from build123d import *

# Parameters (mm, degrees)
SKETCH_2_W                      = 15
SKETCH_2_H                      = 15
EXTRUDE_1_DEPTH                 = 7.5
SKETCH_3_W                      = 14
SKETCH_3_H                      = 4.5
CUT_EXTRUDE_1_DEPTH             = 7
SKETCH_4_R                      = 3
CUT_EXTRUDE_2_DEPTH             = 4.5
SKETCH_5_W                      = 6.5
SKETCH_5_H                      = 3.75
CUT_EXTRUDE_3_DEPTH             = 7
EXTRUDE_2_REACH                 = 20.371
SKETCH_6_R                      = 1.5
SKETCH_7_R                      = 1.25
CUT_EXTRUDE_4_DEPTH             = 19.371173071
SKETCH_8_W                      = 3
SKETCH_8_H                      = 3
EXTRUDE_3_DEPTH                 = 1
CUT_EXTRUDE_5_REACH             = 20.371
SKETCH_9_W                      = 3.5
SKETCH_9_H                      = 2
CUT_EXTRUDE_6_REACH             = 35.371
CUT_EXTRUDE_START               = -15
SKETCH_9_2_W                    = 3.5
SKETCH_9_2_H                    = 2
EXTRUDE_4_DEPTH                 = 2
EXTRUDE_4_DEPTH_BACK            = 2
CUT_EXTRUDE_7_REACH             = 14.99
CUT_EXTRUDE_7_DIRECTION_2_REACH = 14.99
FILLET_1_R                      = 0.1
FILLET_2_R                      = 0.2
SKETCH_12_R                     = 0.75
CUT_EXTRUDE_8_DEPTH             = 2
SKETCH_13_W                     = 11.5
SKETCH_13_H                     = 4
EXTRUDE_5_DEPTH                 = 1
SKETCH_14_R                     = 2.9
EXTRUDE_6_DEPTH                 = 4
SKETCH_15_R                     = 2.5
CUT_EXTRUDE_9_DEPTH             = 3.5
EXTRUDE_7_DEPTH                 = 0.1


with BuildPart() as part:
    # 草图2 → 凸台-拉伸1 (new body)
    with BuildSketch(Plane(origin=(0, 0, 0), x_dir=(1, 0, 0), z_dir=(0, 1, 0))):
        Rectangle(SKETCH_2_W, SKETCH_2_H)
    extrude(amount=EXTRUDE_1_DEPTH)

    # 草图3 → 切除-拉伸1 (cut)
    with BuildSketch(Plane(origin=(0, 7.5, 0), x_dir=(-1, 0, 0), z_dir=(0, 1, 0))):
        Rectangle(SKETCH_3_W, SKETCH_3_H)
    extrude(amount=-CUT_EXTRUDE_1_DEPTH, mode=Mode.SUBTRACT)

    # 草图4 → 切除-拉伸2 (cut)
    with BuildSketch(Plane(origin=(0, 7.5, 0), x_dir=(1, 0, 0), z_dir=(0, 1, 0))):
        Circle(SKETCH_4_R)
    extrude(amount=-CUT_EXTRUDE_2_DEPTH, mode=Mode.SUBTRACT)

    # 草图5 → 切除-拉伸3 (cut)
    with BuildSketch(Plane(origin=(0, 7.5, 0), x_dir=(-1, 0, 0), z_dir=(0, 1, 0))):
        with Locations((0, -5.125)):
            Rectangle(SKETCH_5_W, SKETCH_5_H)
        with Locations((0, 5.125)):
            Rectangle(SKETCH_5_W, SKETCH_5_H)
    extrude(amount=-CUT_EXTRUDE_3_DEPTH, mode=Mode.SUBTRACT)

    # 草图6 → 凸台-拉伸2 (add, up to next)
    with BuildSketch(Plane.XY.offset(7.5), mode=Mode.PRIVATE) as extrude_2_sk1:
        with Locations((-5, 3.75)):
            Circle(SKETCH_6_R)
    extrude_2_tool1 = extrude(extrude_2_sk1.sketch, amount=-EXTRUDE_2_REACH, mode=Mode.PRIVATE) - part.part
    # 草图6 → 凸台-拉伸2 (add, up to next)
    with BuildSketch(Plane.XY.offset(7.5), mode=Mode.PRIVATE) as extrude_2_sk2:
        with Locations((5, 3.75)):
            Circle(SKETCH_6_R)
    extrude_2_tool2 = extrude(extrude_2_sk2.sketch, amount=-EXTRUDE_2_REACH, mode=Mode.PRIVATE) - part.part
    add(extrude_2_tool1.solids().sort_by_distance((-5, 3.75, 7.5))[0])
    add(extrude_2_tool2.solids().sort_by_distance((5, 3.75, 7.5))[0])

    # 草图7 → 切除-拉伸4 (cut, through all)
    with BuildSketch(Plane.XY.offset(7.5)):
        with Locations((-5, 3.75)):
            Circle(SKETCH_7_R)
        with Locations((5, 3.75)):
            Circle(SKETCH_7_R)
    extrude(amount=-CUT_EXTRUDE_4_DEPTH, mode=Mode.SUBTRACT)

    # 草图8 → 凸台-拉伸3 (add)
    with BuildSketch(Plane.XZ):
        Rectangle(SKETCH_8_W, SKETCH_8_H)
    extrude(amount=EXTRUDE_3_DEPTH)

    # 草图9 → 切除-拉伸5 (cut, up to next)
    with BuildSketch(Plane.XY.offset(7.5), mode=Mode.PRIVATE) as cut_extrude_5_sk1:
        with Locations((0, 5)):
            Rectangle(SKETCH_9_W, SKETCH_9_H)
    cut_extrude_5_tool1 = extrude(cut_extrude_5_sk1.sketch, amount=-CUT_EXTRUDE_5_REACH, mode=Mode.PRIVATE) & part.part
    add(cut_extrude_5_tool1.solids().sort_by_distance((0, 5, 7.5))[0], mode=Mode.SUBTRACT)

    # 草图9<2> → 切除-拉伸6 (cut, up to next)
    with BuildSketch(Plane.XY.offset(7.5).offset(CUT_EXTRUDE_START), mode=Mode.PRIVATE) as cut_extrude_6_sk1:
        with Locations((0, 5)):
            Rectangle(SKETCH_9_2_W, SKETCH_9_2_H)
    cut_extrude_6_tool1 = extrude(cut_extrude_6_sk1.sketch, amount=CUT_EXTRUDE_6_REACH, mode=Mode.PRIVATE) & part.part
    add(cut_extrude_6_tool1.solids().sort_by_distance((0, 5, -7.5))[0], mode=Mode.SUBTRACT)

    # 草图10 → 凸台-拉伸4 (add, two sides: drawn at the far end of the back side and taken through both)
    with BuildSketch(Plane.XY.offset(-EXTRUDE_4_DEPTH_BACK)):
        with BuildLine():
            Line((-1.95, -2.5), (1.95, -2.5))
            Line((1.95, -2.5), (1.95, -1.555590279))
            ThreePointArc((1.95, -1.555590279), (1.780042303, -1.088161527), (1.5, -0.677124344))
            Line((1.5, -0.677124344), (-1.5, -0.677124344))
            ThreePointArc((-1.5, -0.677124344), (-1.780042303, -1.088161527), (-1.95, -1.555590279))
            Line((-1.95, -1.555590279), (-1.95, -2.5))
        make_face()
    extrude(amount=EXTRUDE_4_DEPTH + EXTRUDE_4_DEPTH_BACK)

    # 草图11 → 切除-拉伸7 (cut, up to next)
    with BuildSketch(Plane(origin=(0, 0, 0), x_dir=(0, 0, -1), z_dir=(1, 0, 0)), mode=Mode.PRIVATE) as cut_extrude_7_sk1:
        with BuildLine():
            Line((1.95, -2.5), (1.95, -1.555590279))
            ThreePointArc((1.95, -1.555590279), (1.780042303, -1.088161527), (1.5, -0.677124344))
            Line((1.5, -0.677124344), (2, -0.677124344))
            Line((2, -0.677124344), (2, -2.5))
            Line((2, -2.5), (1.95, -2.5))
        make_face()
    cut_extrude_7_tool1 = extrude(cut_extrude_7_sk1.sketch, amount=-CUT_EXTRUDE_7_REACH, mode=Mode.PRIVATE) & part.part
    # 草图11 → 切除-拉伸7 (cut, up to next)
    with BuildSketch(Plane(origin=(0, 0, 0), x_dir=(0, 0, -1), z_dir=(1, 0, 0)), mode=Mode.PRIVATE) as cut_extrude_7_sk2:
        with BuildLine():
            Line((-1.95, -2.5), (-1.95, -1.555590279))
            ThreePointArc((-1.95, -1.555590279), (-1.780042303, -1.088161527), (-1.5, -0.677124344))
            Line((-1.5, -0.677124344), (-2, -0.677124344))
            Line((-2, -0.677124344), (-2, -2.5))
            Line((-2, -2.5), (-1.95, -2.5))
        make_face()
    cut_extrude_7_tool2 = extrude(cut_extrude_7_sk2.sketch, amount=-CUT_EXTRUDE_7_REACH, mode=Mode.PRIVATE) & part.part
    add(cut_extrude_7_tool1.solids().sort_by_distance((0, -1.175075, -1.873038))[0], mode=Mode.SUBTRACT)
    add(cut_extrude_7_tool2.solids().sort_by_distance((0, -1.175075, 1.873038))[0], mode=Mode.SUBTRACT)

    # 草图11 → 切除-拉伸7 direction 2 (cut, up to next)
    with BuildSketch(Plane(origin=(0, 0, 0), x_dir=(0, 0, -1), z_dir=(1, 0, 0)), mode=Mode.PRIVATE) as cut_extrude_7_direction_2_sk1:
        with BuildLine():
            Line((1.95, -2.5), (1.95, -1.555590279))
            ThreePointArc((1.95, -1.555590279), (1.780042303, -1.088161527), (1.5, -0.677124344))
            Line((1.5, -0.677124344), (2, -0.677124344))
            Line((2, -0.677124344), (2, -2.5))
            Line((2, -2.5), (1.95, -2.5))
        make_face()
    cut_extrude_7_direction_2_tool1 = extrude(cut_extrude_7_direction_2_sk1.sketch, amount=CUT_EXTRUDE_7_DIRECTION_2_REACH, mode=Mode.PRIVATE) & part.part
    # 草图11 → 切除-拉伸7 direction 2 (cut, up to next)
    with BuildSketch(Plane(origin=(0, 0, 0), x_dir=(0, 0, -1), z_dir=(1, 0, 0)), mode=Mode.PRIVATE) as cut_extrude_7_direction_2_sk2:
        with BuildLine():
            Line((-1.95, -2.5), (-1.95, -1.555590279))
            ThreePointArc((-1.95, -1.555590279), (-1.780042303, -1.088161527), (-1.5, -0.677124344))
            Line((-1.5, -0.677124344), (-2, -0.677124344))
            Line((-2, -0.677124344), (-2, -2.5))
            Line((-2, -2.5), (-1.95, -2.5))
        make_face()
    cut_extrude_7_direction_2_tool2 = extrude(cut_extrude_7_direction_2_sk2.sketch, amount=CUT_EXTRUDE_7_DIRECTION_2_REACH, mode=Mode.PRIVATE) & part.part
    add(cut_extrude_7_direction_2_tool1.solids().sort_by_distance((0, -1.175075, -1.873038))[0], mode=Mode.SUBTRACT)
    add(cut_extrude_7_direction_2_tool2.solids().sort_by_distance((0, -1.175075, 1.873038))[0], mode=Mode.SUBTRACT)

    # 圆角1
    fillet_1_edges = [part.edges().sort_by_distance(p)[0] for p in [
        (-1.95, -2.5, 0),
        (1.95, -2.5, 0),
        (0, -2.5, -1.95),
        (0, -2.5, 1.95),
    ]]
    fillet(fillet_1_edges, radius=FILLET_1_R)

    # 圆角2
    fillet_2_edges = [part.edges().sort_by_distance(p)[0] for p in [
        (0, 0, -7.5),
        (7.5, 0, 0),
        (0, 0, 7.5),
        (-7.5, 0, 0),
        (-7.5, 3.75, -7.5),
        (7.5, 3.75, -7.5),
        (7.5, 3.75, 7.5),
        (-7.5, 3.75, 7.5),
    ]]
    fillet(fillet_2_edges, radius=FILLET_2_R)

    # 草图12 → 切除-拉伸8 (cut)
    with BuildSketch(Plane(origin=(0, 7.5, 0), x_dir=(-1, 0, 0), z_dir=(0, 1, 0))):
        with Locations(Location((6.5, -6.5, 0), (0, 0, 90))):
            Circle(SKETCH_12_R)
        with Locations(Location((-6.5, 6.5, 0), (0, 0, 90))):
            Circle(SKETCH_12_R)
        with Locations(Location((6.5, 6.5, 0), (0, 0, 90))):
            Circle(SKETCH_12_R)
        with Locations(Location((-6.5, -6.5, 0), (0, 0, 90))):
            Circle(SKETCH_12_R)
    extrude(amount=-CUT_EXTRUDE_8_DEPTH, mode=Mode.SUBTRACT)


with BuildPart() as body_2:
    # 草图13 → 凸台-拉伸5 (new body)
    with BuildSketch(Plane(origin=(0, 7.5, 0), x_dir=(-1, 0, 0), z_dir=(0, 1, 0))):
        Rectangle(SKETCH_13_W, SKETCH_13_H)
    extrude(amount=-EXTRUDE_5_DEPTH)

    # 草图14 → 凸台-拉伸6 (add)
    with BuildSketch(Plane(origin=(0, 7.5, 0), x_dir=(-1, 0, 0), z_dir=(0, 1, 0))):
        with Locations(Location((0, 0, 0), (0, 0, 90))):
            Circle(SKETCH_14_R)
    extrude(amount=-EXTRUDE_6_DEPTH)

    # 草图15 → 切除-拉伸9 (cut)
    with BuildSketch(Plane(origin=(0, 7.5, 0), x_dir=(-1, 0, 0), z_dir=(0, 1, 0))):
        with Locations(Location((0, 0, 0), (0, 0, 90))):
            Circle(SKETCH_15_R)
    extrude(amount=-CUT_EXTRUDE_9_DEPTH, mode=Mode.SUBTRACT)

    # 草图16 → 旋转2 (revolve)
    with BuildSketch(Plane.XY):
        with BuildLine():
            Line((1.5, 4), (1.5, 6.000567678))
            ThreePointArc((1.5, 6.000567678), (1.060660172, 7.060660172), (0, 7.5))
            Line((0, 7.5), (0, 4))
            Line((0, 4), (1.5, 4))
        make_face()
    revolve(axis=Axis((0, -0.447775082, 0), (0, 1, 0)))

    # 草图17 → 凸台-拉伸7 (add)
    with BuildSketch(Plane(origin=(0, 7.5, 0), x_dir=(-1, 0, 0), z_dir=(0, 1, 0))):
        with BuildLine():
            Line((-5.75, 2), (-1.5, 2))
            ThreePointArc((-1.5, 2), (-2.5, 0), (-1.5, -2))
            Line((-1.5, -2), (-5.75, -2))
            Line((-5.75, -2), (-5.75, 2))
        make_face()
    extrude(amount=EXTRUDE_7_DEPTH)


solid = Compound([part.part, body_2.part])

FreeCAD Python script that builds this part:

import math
import FreeCAD as App
import Part
import Sketcher
Q = App.Units.Quantity


def edges_at(feature, points):
    """Names of the edges that pass closest to the given points."""
    edges = feature.Shape.Edges
    near = lambda p: min(range(len(edges)), key=lambda i: edges[i].distToShape(Part.Vertex(*p))[0])
    return sorted({f"Edge{near(p) + 1}" for p in points})


def add_polygon(sketch, points):
    """Adds a closed chain of lines whose ends are joined by coincident constraints."""
    first, n = sketch.GeometryCount, len(points)
    for a, b in zip(points, points[1:] + points[:1]):
        sketch.addGeometry(Part.LineSegment(App.Vector(*a, 0), App.Vector(*b, 0)), False)
    for i in range(n):
        sketch.addConstraint(Sketcher.Constraint("Coincident", first + i, 2, first + (i + 1) % n, 1))

doc = App.newDocument("Part")
body = doc.addObject("PartDesign::Body", "Body")

# Sketch on XZ plane
sketch1 = body.newObject("Sketcher::SketchObject", "Sketch")
sketch1.AttachmentSupport = (doc.getObject("XZ_Plane"), [""])
sketch1.MapMode = "FlatFace"
add_polygon(sketch1, [(-8, -8), (-8, 8), (8, 8), (8, -8)])  # lines 0-3
sketch1.addConstraint([
    Sketcher.Constraint("Vertical", 0),
    Sketcher.Constraint("Horizontal", 1),
    Sketcher.Constraint("Vertical", 2),
    Sketcher.Constraint("Horizontal", 3),
    Sketcher.Constraint("Symmetric", 0, 2, 2, 2, -1, 1),
    Sketcher.Constraint("Equal", 3, 0),
    Sketcher.Constraint("DistanceX", 1, 1, 1, 2, Q("15 mm")),
])
pad1 = body.newObject("PartDesign::Pad", "Pad")
pad1.Profile = sketch1
pad1.Length = 7.5
pad1.Reversed = True

# Sketch on XZ plane
sketch2 = body.newObject("Sketcher::SketchObject", "Sketch001")
sketch2.AttachmentSupport = (doc.getObject("XZ_Plane"), [""])
sketch2.MapMode = "FlatFace"
sketch2.AttachmentOffset = App.Placement(App.Vector(0, 0, -7.5), App.Rotation())
add_polygon(sketch2, [(7, 2.2), (7, -2.2), (-7, -2.2), (-7, 2.2)])  # lines 0-3
sketch2.addConstraint([
    Sketcher.Constraint("Vertical", 0),
    Sketcher.Constraint("Horizontal", 1),
    Sketcher.Constraint("Vertical", 2),
    Sketcher.Constraint("Horizontal", 3),
    Sketcher.Constraint("Symmetric", 0, 2, 2, 2, -1, 1),
    Sketcher.Constraint("DistanceX", 1, 2, 1, 1, Q("14 mm")),
    Sketcher.Constraint("DistanceY", 0, 2, 0, 1, Q("4.5 mm")),
])
pocket1 = body.newObject("PartDesign::Pocket", "Pocket")
pocket1.Profile = sketch2
pocket1.Length = 7
pocket1.Reversed = True

# Sketch on XZ plane
sketch3 = body.newObject("Sketcher::SketchObject", "Sketch002")
sketch3.AttachmentSupport = (doc.getObject("XZ_Plane"), [""])
sketch3.MapMode = "FlatFace"
sketch3.AttachmentOffset = App.Placement(App.Vector(0, 0, -7.5), App.Rotation())
sketch3.addGeometry(Part.Circle(App.Vector(0, 0, 0), App.Vector(0, 0, 1), 3), False)
sketch3.addConstraint([
    Sketcher.Constraint("Coincident", 0, 3, -1, 1),
    Sketcher.Constraint("Diameter", 0, Q("6 mm")),
])
pocket2 = body.newObject("PartDesign::Pocket", "Pocket001")
pocket2.Profile = sketch3
pocket2.Length = 4.5
pocket2.Reversed = True

# Sketch on XZ plane
sketch4 = body.newObject("Sketcher::SketchObject", "Sketch003")
sketch4.AttachmentSupport = (doc.getObject("XZ_Plane"), [""])
sketch4.MapMode = "FlatFace"
sketch4.AttachmentOffset = App.Placement(App.Vector(0, 0, -7.5), App.Rotation())
add_polygon(sketch4, [(3.2, -3.2), (3.2, -7), (-3.2, -7), (-3.2, -3.2)])  # lines 0-3
add_polygon(sketch4, [(3.2, 7), (3.2, 3.2), (-3.2, 3.2), (-3.2, 7)])  # lines 4-7
sketch4.addConstraint([
    Sketcher.Constraint("Vertical", 0),
    Sketcher.Constraint("Horizontal", 1),
    Sketcher.Constraint("Vertical", 2),
    Sketcher.Constraint("Horizontal", 3),
    Sketcher.Constraint("Vertical", 4),
    Sketcher.Constraint("Horizontal", 5),
    Sketcher.Constraint("Vertical", 6),
    Sketcher.Constraint("Horizontal", 7),
    Sketcher.Constraint("Symmetric", 2, 2, 4, 2, -1, 1),
    Sketcher.Constraint("Symmetric", 0, 2, 6, 2, -1, 1),
    Sketcher.Constraint("Vertical", 3, 2, 4, 2),
    Sketcher.Constraint("DistanceX", 1, 2, 1, 1, Q("6.5 mm")),
    Sketcher.Constraint("DistanceY", 0, 2, -1, 1, Q("7 mm")),
    Sketcher.Constraint("DistanceY", 0, 2, 0, 1, Q("3.75 mm")),
])
pocket3 = body.newObject("PartDesign::Pocket", "Pocket002")
pocket3.Profile = sketch4
pocket3.Length = 7
pocket3.Reversed = True

# Sketch on XY plane
sketch5 = body.newObject("Sketcher::SketchObject", "Sketch004")
sketch5.AttachmentSupport = (doc.getObject("XY_Plane"), [""])
sketch5.MapMode = "FlatFace"
sketch5.AttachmentOffset = App.Placement(App.Vector(0, 0, 7.5), App.Rotation())
sketch5.addGeometry(Part.Circle(App.Vector(-5, 3.8, 0), App.Vector(0, 0, 1), 1.5), False)
sketch5.addConstraint([
    Sketcher.Constraint("Diameter", 0, Q("3 mm")),
    Sketcher.Constraint("DistanceX", 0, 3, -1, 1, Q("5 mm")),
    Sketcher.Constraint("DistanceY", -1, 1, 0, 3, Q("3.75 mm")),
])
pad2 = body.newObject("PartDesign::Pad", "Pad001")
pad2.Profile = sketch5
pad2.Length = 9.75
pad2.Reversed = True

# Sketch on XY plane
sketch6 = body.newObject("Sketcher::SketchObject", "Sketch005")
sketch6.AttachmentSupport = (doc.getObject("XY_Plane"), [""])
sketch6.MapMode = "FlatFace"
sketch6.AttachmentOffset = App.Placement(App.Vector(0, 0, 7.5), App.Rotation())
sketch6.addGeometry(Part.Circle(App.Vector(5, 3.8, 0), App.Vector(0, 0, 1), 1.5), False)
sketch6.addConstraint([
    Sketcher.Constraint("Diameter", 0, Q("3 mm")),
    Sketcher.Constraint("DistanceX", -1, 1, 0, 3, Q("5 mm")),
    Sketcher.Constraint("DistanceY", -1, 1, 0, 3, Q("3.75 mm")),
])
pad3 = body.newObject("PartDesign::Pad", "Pad002")
pad3.Profile = sketch6
pad3.Length = 9.75
pad3.Reversed = True

# Sketch on XY plane
sketch7 = body.newObject("Sketcher::SketchObject", "Sketch006")
sketch7.AttachmentSupport = (doc.getObject("XY_Plane"), [""])
sketch7.MapMode = "FlatFace"
sketch7.AttachmentOffset = App.Placement(App.Vector(0, 0, 7.5), App.Rotation())
sketch7.addGeometry([
    Part.Circle(App.Vector(-5, 3.8, 0), App.Vector(0, 0, 1), 1.2),
    Part.Circle(App.Vector(5, 3.8, 0), App.Vector(0, 0, 1), 1.2),
], False)
sketch7.addConstraint([
    Sketcher.Constraint("Equal", 0, 1),
    Sketcher.Constraint("Symmetric", 0, 3, 1, 3, -2),
    Sketcher.Constraint("Diameter", 0, Q("2.5 mm")),
    Sketcher.Constraint("DistanceX", 0, 3, -1, 1, Q("5 mm")),
    Sketcher.Constraint("DistanceY", -1, 1, 0, 3, Q("3.75 mm")),
])
pocket4 = body.newObject("PartDesign::Pocket", "Pocket003")
pocket4.Profile = sketch7
pocket4.Type = "ThroughAll"

# Sketch on XZ plane
sketch8 = body.newObject("Sketcher::SketchObject", "Sketch007")
sketch8.AttachmentSupport = (doc.getObject("XZ_Plane"), [""])
sketch8.MapMode = "FlatFace"
add_polygon(sketch8, [(-1.5, 1.5), (-1.5, -1.5), (1.5, -1.5), (1.5, 1.5)])  # lines 0-3
sketch8.addConstraint([
    Sketcher.Constraint("Vertical", 0),
    Sketcher.Constraint("Horizontal", 1),
    Sketcher.Constraint("Vertical", 2),
    Sketcher.Constraint("Horizontal", 3),
    Sketcher.Constraint("Symmetric", 0, 2, 2, 2, -1, 1),
    Sketcher.Constraint("Equal", 3, 0),
    Sketcher.Constraint("DistanceX", 1, 1, 1, 2, Q("3 mm")),
])
pad4 = body.newObject("PartDesign::Pad", "Pad003")
pad4.Profile = sketch8
pad4.Length = 1

# Sketch on XY plane
sketch9 = body.newObject("Sketcher::SketchObject", "Sketch008")
sketch9.AttachmentSupport = (doc.getObject("XY_Plane"), [""])
sketch9.MapMode = "FlatFace"
sketch9.AttachmentOffset = App.Placement(App.Vector(0, 0, 7.5), App.Rotation())
add_polygon(sketch9, [(-1.8, 6), (-1.8, 4), (1.8, 4), (1.8, 6)])  # lines 0-3
sketch9.addConstraint([
    Sketcher.Constraint("Vertical", 0),
    Sketcher.Constraint("Horizontal", 1),
    Sketcher.Constraint("Vertical", 2),
    Sketcher.Constraint("Horizontal", 3),
    Sketcher.Constraint("DistanceY", 0, 2, 0, 1, Q("2 mm")),
    Sketcher.Constraint("DistanceX", 1, 1, 1, 2, Q("3.5 mm")),
    Sketcher.Constraint("DistanceY", -1, 1, 0, 2, Q("4 mm")),
    Sketcher.Constraint("DistanceX", 0, 2, -1, 1, Q("1.75 mm")),
])
pocket5 = body.newObject("PartDesign::Pocket", "Pocket004")
pocket5.Profile = sketch9
pocket5.Type = "UpToFirst"

# Sketch on XY plane
sketch10 = body.newObject("Sketcher::SketchObject", "Sketch009")
sketch10.AttachmentSupport = (doc.getObject("XY_Plane"), [""])
sketch10.MapMode = "FlatFace"
sketch10.AttachmentOffset = App.Placement(App.Vector(0, 0, -7.5), App.Rotation())
add_polygon(sketch10, [(-1.8, 6), (-1.8, 4), (1.8, 4), (1.8, 6)])  # lines 0-3
sketch10.addConstraint([
    Sketcher.Constraint("Vertical", 0),
    Sketcher.Constraint("Horizontal", 1),
    Sketcher.Constraint("Vertical", 2),
    Sketcher.Constraint("Horizontal", 3),
    Sketcher.Constraint("DistanceY", 0, 2, 0, 1, Q("2 mm")),
    Sketcher.Constraint("DistanceX", 1, 1, 1, 2, Q("3.5 mm")),
    Sketcher.Constraint("DistanceY", -1, 1, 0, 2, Q("4 mm")),
    Sketcher.Constraint("DistanceX", 0, 2, -1, 1, Q("1.75 mm")),
])
pocket6 = body.newObject("PartDesign::Pocket", "Pocket005")
pocket6.Profile = sketch10
pocket6.Type = "UpToFirst"
pocket6.Reversed = True

# Sketch on XY plane
sketch11 = body.newObject("Sketcher::SketchObject", "Sketch010")
sketch11.AttachmentSupport = (doc.getObject("XY_Plane"), [""])
sketch11.MapMode = "FlatFace"
sketch11.addGeometry([
    Part.LineSegment(App.Vector(-1.9, -2.5, 0), App.Vector(1.9, -2.5, 0)),  # 0
    Part.LineSegment(App.Vector(1.9, -2.5, 0), App.Vector(1.9, -1.6, 0)),  # 1
    Part.ArcOfCircle(Part.Circle(App.Vector(0, -2, 0), App.Vector(0, 0, 1), 2), math.radians(13), math.radians(41)),  # 2
    Part.LineSegment(App.Vector(1.5, -0.7, 0), App.Vector(-1.5, -0.7, 0)),  # 3
    Part.ArcOfCircle(Part.Circle(App.Vector(0, -2, 0), App.Vector(0, 0, 1), 2), math.radians(139), math.radians(167)),  # 4
    Part.LineSegment(App.Vector(-1.9, -1.6, 0), App.Vector(-1.9, -2.5, 0)),  # 5
], False)
sketch11.addConstraint([
    Sketcher.Constraint("Coincident", 0, 2, 1, 1),
    Sketcher.Constraint("Coincident", 1, 2, 2, 1),
    Sketcher.Constraint("Coincident", 2, 2, 3, 1),
    Sketcher.Constraint("Coincident", 3, 2, 4, 1),
    Sketcher.Constraint("Coincident", 4, 2, 5, 1),
    Sketcher.Constraint("Coincident", 5, 2, 0, 1),
    Sketcher.Constraint("Horizontal", 0),
    Sketcher.Constraint("Vertical", 1),
    Sketcher.Constraint("Horizontal", 3),
    Sketcher.Constraint("Vertical", 5),
    Sketcher.Constraint("Coincident", 4, 3, 2, 3),
    Sketcher.Constraint("Equal", 2, 4),
    Sketcher.Constraint("Symmetric", 1, 2, 4, 2, -2),
    Sketcher.Constraint("Radius", 2, Q("2 mm")),
    Sketcher.Constraint("DistanceX", 3, 2, 3, 1, Q("3 mm")),
    Sketcher.Constraint("DistanceX", 0, 1, 0, 2, Q("3.9 mm")),
    Sketcher.Constraint("DistanceY", 2, 3, -1, 1, Q("2 mm")),
    Sketcher.Constraint("DistanceY", 0, 2, -1, 1, Q("2.5 mm")),
])
pad5 = body.newObject("PartDesign::Pad", "Pad004")
pad5.Profile = sketch11
pad5.Type = "TwoLengths"
pad5.Length = 2
pad5.Length2 = 2

# Sketch on YZ plane
sketch12 = body.newObject("Sketcher::SketchObject", "Sketch011")
sketch12.AttachmentSupport = (doc.getObject("YZ_Plane"), [""])
sketch12.MapMode = "FlatFace"
sketch12.addGeometry([
    Part.LineSegment(App.Vector(-1.56, -1.95, 0), App.Vector(-2.5, -1.95, 0)),  # 0
    Part.LineSegment(App.Vector(-2.5, -1.95, 0), App.Vector(-2.5, -2, 0)),  # 1
    Part.LineSegment(App.Vector(-2.5, -2, 0), App.Vector(-0.68, -2, 0)),  # 2
    Part.LineSegment(App.Vector(-0.68, -2, 0), App.Vector(-0.68, -1.5, 0)),  # 3
    Part.ArcOfCircle(Part.Circle(App.Vector(-2, 0, 0), App.Vector(0, 0, 1), 2), math.radians(-77), math.radians(-49)),  # 4
], False)
sketch12.addConstraint([
    Sketcher.Constraint("Coincident", 0, 2, 1, 1),
    Sketcher.Constraint("Coincident", 1, 2, 2, 1),
    Sketcher.Constraint("Coincident", 2, 2, 3, 1),
    Sketcher.Constraint("Coincident", 3, 2, 4, 2),
    Sketcher.Constraint("Coincident", 4, 1, 0, 1),
    Sketcher.Constraint("Horizontal", 0),
    Sketcher.Constraint("Vertical", 1),
    Sketcher.Constraint("Horizontal", 2),
    Sketcher.Constraint("Vertical", 3),
    Sketcher.Constraint("PointOnObject", 4, 3, -1),
    Sketcher.Constraint("Radius", 4, Q("2 mm")),
    Sketcher.Constraint("DistanceY", 3, 1, 3, 2, Q("0.5 mm")),
    Sketcher.Constraint("DistanceX", 4, 3, -1, 1, Q("2 mm")),
    Sketcher.Constraint("DistanceY", 1, 2, -1, 1, Q("2 mm")),
    Sketcher.Constraint("DistanceY", 1, 2, 1, 1, Q("0.05 mm")),
    Sketcher.Constraint("DistanceX", 0, 2, -1, 1, Q("2.5 mm")),
])
pocket7 = body.newObject("PartDesign::Pocket", "Pocket006")
pocket7.Profile = sketch12
pocket7.Type = "UpToFirst"

# Sketch on YZ plane
sketch13 = body.newObject("Sketcher::SketchObject", "Sketch012")
sketch13.AttachmentSupport = (doc.getObject("YZ_Plane"), [""])
sketch13.MapMode = "FlatFace"
sketch13.addGeometry([
    Part.LineSegment(App.Vector(-2.5, 1.95, 0), App.Vector(-1.56, 1.95, 0)),  # 0
    Part.ArcOfCircle(Part.Circle(App.Vector(-2, 0, 0), App.Vector(0, 0, 1), 2), math.radians(49), math.radians(77)),  # 1
    Part.LineSegment(App.Vector(-0.68, 1.5, 0), App.Vector(-0.68, 2, 0)),  # 2
    Part.LineSegment(App.Vector(-0.68, 2, 0), App.Vector(-2.5, 2, 0)),  # 3
    Part.LineSegment(App.Vector(-2.5, 2, 0), App.Vector(-2.5, 1.95, 0)),  # 4
], False)
sketch13.addConstraint([
    Sketcher.Constraint("Coincident", 0, 2, 1, 2),
    Sketcher.Constraint("Coincident", 1, 1, 2, 1),
    Sketcher.Constraint("Coincident", 2, 2, 3, 1),
    Sketcher.Constraint("Coincident", 3, 2, 4, 1),
    Sketcher.Constraint("Coincident", 4, 2, 0, 1),
    Sketcher.Constraint("Horizontal", 0),
    Sketcher.Constraint("Vertical", 2),
    Sketcher.Constraint("Horizontal", 3),
    Sketcher.Constraint("Vertical", 4),
    Sketcher.Constraint("PointOnObject", 1, 3, -1),
    Sketcher.Constraint("Radius", 1, Q("2 mm")),
    Sketcher.Constraint("DistanceY", 2, 1, 2, 2, Q("0.5 mm")),
    Sketcher.Constraint("DistanceX", 1, 3, -1, 1, Q("2 mm")),
    Sketcher.Constraint("DistanceY", -1, 1, 2, 2, Q("2 mm")),
    Sketcher.Constraint("DistanceY", 4, 2, 4, 1, Q("0.05 mm")),
    Sketcher.Constraint("DistanceX", 3, 2, -1, 1, Q("2.5 mm")),
])
pocket8 = body.newObject("PartDesign::Pocket", "Pocket007")
pocket8.Profile = sketch13
pocket8.Type = "UpToFirst"

# Sketch on YZ plane
sketch14 = body.newObject("Sketcher::SketchObject", "Sketch013")
sketch14.AttachmentSupport = (doc.getObject("YZ_Plane"), [""])
sketch14.MapMode = "FlatFace"
sketch14.addGeometry([
    Part.LineSegment(App.Vector(-1.56, -1.95, 0), App.Vector(-2.5, -1.95, 0)),  # 0
    Part.LineSegment(App.Vector(-2.5, -1.95, 0), App.Vector(-2.5, -2, 0)),  # 1
    Part.LineSegment(App.Vector(-2.5, -2, 0), App.Vector(-0.68, -2, 0)),  # 2
    Part.LineSegment(App.Vector(-0.68, -2, 0), App.Vector(-0.68, -1.5, 0)),  # 3
    Part.ArcOfCircle(Part.Circle(App.Vector(-2, 0, 0), App.Vector(0, 0, 1), 2), math.radians(-77), math.radians(-49)),  # 4
], False)
sketch14.addConstraint([
    Sketcher.Constraint("Coincident", 0, 2, 1, 1),
    Sketcher.Constraint("Coincident", 1, 2, 2, 1),
    Sketcher.Constraint("Coincident", 2, 2, 3, 1),
    Sketcher.Constraint("Coincident", 3, 2, 4, 2),
    Sketcher.Constraint("Coincident", 4, 1, 0, 1),
    Sketcher.Constraint("Horizontal", 0),
    Sketcher.Constraint("Vertical", 1),
    Sketcher.Constraint("Horizontal", 2),
    Sketcher.Constraint("Vertical", 3),
    Sketcher.Constraint("PointOnObject", 4, 3, -1),
    Sketcher.Constraint("Radius", 4, Q("2 mm")),
    Sketcher.Constraint("DistanceY", 3, 1, 3, 2, Q("0.5 mm")),
    Sketcher.Constraint("DistanceX", 4, 3, -1, 1, Q("2 mm")),
    Sketcher.Constraint("DistanceY", 1, 2, -1, 1, Q("2 mm")),
    Sketcher.Constraint("DistanceY", 1, 2, 1, 1, Q("0.05 mm")),
    Sketcher.Constraint("DistanceX", 0, 2, -1, 1, Q("2.5 mm")),
])
pocket9 = body.newObject("PartDesign::Pocket", "Pocket008")
pocket9.Profile = sketch14
pocket9.Type = "UpToFirst"
pocket9.Reversed = True

# Sketch on YZ plane
sketch15 = body.newObject("Sketcher::SketchObject", "Sketch014")
sketch15.AttachmentSupport = (doc.getObject("YZ_Plane"), [""])
sketch15.MapMode = "FlatFace"
sketch15.addGeometry([
    Part.LineSegment(App.Vector(-2.5, 1.95, 0), App.Vector(-1.56, 1.95, 0)),  # 0
    Part.ArcOfCircle(Part.Circle(App.Vector(-2, 0, 0), App.Vector(0, 0, 1), 2), math.radians(49), math.radians(77)),  # 1
    Part.LineSegment(App.Vector(-0.68, 1.5, 0), App.Vector(-0.68, 2, 0)),  # 2
    Part.LineSegment(App.Vector(-0.68, 2, 0), App.Vector(-2.5, 2, 0)),  # 3
    Part.LineSegment(App.Vector(-2.5, 2, 0), App.Vector(-2.5, 1.95, 0)),  # 4
], False)
sketch15.addConstraint([
    Sketcher.Constraint("Coincident", 0, 2, 1, 2),
    Sketcher.Constraint("Coincident", 1, 1, 2, 1),
    Sketcher.Constraint("Coincident", 2, 2, 3, 1),
    Sketcher.Constraint("Coincident", 3, 2, 4, 1),
    Sketcher.Constraint("Coincident", 4, 2, 0, 1),
    Sketcher.Constraint("Horizontal", 0),
    Sketcher.Constraint("Vertical", 2),
    Sketcher.Constraint("Horizontal", 3),
    Sketcher.Constraint("Vertical", 4),
    Sketcher.Constraint("PointOnObject", 1, 3, -1),
    Sketcher.Constraint("Radius", 1, Q("2 mm")),
    Sketcher.Constraint("DistanceY", 2, 1, 2, 2, Q("0.5 mm")),
    Sketcher.Constraint("DistanceX", 1, 3, -1, 1, Q("2 mm")),
    Sketcher.Constraint("DistanceY", -1, 1, 2, 2, Q("2 mm")),
    Sketcher.Constraint("DistanceY", 4, 2, 4, 1, Q("0.05 mm")),
    Sketcher.Constraint("DistanceX", 3, 2, -1, 1, Q("2.5 mm")),
])
pocket10 = body.newObject("PartDesign::Pocket", "Pocket009")
pocket10.Profile = sketch15
pocket10.Type = "UpToFirst"
pocket10.Reversed = True
doc.recompute()

fillet = body.newObject("PartDesign::Fillet", "Fillet")
fillet.Base = (pocket10, edges_at(pocket10, [
    (-1.95, -2.5, 0),
    (1.95, -2.5, 0),
    (0, -2.5, -1.95),
    (0, -2.5, 1.95),
]))
fillet.Radius = 0.1
doc.recompute()

fillet2 = body.newObject("PartDesign::Fillet", "Fillet001")
fillet2.Base = (fillet, edges_at(fillet, [
    (0, 0, -7.5),
    (7.5, 0, 0),
    (0, 0, 7.5),
    (-7.5, 0, 0),
    (-7.5, 3.75, -7.5),
    (7.5, 3.75, -7.5),
    (7.5, 3.75, 7.5),
    (-7.5, 3.75, 7.5),
]))
fillet2.Radius = 0.2

# Sketch on XZ plane
sketch16 = body.newObject("Sketcher::SketchObject", "Sketch015")
sketch16.AttachmentSupport = (doc.getObject("XZ_Plane"), [""])
sketch16.MapMode = "FlatFace"
sketch16.AttachmentOffset = App.Placement(App.Vector(0, 0, -7.5), App.Rotation())
sketch16.addGeometry([
    Part.Circle(App.Vector(-6.5, -6.5, 0), App.Vector(0, 0, 1), 0.8),
    Part.Circle(App.Vector(6.5, 6.5, 0), App.Vector(0, 0, 1), 0.8),
    Part.Circle(App.Vector(-6.5, 6.5, 0), App.Vector(0, 0, 1), 0.8),
    Part.Circle(App.Vector(6.5, -6.5, 0), App.Vector(0, 0, 1), 0.8),
], False)
sketch16.addConstraint([
    Sketcher.Constraint("Equal", 0, 1),
    Sketcher.Constraint("Equal", 1, 2),
    Sketcher.Constraint("Equal", 2, 3),
    Sketcher.Constraint("Symmetric", 0, 3, 1, 3, -1, 1),
    Sketcher.Constraint("Symmetric", 2, 3, 3, 3, -1, 1),
    Sketcher.Constraint("Symmetric", 1, 3, 2, 3, -2),
    Sketcher.Constraint("Diameter", 0, Q("1.5 mm")),
    Sketcher.Constraint("DistanceX", 0, 3, 1, 3, Q("13 mm")),
    Sketcher.Constraint("DistanceY", 0, 3, 1, 3, Q("13 mm")),
])
pocket11 = body.newObject("PartDesign::Pocket", "Pocket010")
pocket11.Profile = sketch16
pocket11.Length = 2
pocket11.Reversed = True
body2 = doc.addObject("PartDesign::Body", "Body001")

# Sketch on XZ plane
sketch17 = body2.newObject("Sketcher::SketchObject", "Sketch016")
sketch17.AttachmentSupport = (doc.getObject("XZ_Plane001"), [""])
sketch17.MapMode = "FlatFace"
sketch17.AttachmentOffset = App.Placement(App.Vector(0, 0, -7.5), App.Rotation())
add_polygon(sketch17, [(5.8, 2), (5.8, -2), (-5.8, -2), (-5.8, 2)])  # lines 0-3
sketch17.addConstraint([
    Sketcher.Constraint("Vertical", 0),
    Sketcher.Constraint("Horizontal", 1),
    Sketcher.Constraint("Vertical", 2),
    Sketcher.Constraint("Horizontal", 3),
    Sketcher.Constraint("Symmetric", 0, 2, 2, 2, -1, 1),
    Sketcher.Constraint("DistanceY", 0, 2, 0, 1, Q("4 mm")),
    Sketcher.Constraint("DistanceX", 1, 2, 1, 1, Q("11.5 mm")),
])
pad6 = body2.newObject("PartDesign::Pad", "Pad005")
pad6.Profile = sketch17
pad6.Length = 1

# Sketch on XZ plane
sketch18 = body2.newObject("Sketcher::SketchObject", "Sketch017")
sketch18.AttachmentSupport = (doc.getObject("XZ_Plane001"), [""])
sketch18.MapMode = "FlatFace"
sketch18.AttachmentOffset = App.Placement(App.Vector(0, 0, -7.5), App.Rotation())
sketch18.addGeometry(Part.Circle(App.Vector(0, 0, 0), App.Vector(0, 0, 1), 2.9), False)
sketch18.addConstraint([
    Sketcher.Constraint("Coincident", 0, 3, -1, 1),
    Sketcher.Constraint("Diameter", 0, Q("5.8 mm")),
])
pad7 = body2.newObject("PartDesign::Pad", "Pad006")
pad7.Profile = sketch18
pad7.Length = 4

# Sketch on XZ plane
sketch19 = body2.newObject("Sketcher::SketchObject", "Sketch018")
sketch19.AttachmentSupport = (doc.getObject("XZ_Plane001"), [""])
sketch19.MapMode = "FlatFace"
sketch19.AttachmentOffset = App.Placement(App.Vector(0, 0, -7.5), App.Rotation())
sketch19.addGeometry(Part.Circle(App.Vector(0, 0, 0), App.Vector(0, 0, 1), 2.5), False)
sketch19.addConstraint([
    Sketcher.Constraint("Coincident", 0, 3, -1, 1),
    Sketcher.Constraint("Diameter", 0, Q("5 mm")),
])
pocket12 = body2.newObject("PartDesign::Pocket", "Pocket011")
pocket12.Profile = sketch19
pocket12.Length = 3.5
pocket12.Reversed = True

# Sketch on XY plane
sketch20 = body2.newObject("Sketcher::SketchObject", "Sketch019")
sketch20.AttachmentSupport = (doc.getObject("XY_Plane001"), [""])
sketch20.MapMode = "FlatFace"
sketch20.addGeometry([
    Part.LineSegment(App.Vector(1.5, 4, 0), App.Vector(1.5, 6, 0)),
    Part.ArcOfCircle(Part.Circle(App.Vector(0, 6, 0), App.Vector(0, 0, 1), 1.5), math.radians(0), math.radians(90)),
    Part.LineSegment(App.Vector(0, 7.5, 0), App.Vector(0, 4, 0)),
    Part.LineSegment(App.Vector(0, 4, 0), App.Vector(1.5, 4, 0)),
], False)
sketch20.addConstraint([
    Sketcher.Constraint("Coincident", 0, 2, 1, 1),
    Sketcher.Constraint("Coincident", 1, 2, 2, 1),
    Sketcher.Constraint("Coincident", 2, 2, 3, 1),
    Sketcher.Constraint("Coincident", 3, 2, 0, 1),
    Sketcher.Constraint("Vertical", 0),
    Sketcher.Constraint("Vertical", 2),
    Sketcher.Constraint("Horizontal", 3),
    Sketcher.Constraint("PointOnObject", 1, 3, -2),
    Sketcher.Constraint("PointOnObject", 1, 2, -2),
    Sketcher.Constraint("Radius", 1, Q("1.5 mm")),
    Sketcher.Constraint("DistanceY", 2, 2, 2, 1, Q("3.5 mm")),
    Sketcher.Constraint("DistanceY", -1, 1, 1, 3, Q("6 mm")),
    Sketcher.Constraint("DistanceY", 0, 1, 0, 2, Q("2.000568 mm")),
])
revolution = body2.newObject("PartDesign::Revolution", "Revolution")
revolution.Profile = sketch20
revolution.ReferenceAxis = (sketch20, ["V_Axis"])
revolution.Angle = 360

# Sketch on XZ plane
sketch21 = body2.newObject("Sketcher::SketchObject", "Sketch020")
sketch21.AttachmentSupport = (doc.getObject("XZ_Plane001"), [""])
sketch21.MapMode = "FlatFace"
sketch21.AttachmentOffset = App.Placement(App.Vector(0, 0, -7.5), App.Rotation())
sketch21.addGeometry([
    Part.LineSegment(App.Vector(1.5, 2, 0), App.Vector(5.8, 2, 0)),
    Part.LineSegment(App.Vector(5.8, 2, 0), App.Vector(5.8, -2, 0)),
    Part.LineSegment(App.Vector(5.8, -2, 0), App.Vector(1.5, -2, 0)),
    Part.ArcOfCircle(Part.Circle(App.Vector(0, 0, 0), App.Vector(0, 0, 1), 2.5), math.radians(-53), math.radians(53)),
], False)
sketch21.addConstraint([
    Sketcher.Constraint("Coincident", 0, 2, 1, 1),
    Sketcher.Constraint("Coincident", 1, 2, 2, 1),
    Sketcher.Constraint("Coincident", 2, 2, 3, 1),
    Sketcher.Constraint("Coincident", 3, 2, 0, 1),
    Sketcher.Constraint("Horizontal", 0),
    Sketcher.Constraint("Vertical", 1),
    Sketcher.Constraint("Horizontal", 2),
    Sketcher.Constraint("Coincident", 3, 3, -1, 1),
    Sketcher.Constraint("Vertical", 2, 2, 3, 2),
    Sketcher.Constraint("Radius", 3, Q("2.5 mm")),
    Sketcher.Constraint("DistanceY", 1, 2, 1, 1, Q("4 mm")),
    Sketcher.Constraint("DistanceX", 0, 1, 0, 2, Q("4.25 mm")),
])
pad8 = body2.newObject("PartDesign::Pad", "Pad007")
pad8.Profile = sketch21
pad8.Length = 0.1
pad8.Reversed = True

doc.recompute()
